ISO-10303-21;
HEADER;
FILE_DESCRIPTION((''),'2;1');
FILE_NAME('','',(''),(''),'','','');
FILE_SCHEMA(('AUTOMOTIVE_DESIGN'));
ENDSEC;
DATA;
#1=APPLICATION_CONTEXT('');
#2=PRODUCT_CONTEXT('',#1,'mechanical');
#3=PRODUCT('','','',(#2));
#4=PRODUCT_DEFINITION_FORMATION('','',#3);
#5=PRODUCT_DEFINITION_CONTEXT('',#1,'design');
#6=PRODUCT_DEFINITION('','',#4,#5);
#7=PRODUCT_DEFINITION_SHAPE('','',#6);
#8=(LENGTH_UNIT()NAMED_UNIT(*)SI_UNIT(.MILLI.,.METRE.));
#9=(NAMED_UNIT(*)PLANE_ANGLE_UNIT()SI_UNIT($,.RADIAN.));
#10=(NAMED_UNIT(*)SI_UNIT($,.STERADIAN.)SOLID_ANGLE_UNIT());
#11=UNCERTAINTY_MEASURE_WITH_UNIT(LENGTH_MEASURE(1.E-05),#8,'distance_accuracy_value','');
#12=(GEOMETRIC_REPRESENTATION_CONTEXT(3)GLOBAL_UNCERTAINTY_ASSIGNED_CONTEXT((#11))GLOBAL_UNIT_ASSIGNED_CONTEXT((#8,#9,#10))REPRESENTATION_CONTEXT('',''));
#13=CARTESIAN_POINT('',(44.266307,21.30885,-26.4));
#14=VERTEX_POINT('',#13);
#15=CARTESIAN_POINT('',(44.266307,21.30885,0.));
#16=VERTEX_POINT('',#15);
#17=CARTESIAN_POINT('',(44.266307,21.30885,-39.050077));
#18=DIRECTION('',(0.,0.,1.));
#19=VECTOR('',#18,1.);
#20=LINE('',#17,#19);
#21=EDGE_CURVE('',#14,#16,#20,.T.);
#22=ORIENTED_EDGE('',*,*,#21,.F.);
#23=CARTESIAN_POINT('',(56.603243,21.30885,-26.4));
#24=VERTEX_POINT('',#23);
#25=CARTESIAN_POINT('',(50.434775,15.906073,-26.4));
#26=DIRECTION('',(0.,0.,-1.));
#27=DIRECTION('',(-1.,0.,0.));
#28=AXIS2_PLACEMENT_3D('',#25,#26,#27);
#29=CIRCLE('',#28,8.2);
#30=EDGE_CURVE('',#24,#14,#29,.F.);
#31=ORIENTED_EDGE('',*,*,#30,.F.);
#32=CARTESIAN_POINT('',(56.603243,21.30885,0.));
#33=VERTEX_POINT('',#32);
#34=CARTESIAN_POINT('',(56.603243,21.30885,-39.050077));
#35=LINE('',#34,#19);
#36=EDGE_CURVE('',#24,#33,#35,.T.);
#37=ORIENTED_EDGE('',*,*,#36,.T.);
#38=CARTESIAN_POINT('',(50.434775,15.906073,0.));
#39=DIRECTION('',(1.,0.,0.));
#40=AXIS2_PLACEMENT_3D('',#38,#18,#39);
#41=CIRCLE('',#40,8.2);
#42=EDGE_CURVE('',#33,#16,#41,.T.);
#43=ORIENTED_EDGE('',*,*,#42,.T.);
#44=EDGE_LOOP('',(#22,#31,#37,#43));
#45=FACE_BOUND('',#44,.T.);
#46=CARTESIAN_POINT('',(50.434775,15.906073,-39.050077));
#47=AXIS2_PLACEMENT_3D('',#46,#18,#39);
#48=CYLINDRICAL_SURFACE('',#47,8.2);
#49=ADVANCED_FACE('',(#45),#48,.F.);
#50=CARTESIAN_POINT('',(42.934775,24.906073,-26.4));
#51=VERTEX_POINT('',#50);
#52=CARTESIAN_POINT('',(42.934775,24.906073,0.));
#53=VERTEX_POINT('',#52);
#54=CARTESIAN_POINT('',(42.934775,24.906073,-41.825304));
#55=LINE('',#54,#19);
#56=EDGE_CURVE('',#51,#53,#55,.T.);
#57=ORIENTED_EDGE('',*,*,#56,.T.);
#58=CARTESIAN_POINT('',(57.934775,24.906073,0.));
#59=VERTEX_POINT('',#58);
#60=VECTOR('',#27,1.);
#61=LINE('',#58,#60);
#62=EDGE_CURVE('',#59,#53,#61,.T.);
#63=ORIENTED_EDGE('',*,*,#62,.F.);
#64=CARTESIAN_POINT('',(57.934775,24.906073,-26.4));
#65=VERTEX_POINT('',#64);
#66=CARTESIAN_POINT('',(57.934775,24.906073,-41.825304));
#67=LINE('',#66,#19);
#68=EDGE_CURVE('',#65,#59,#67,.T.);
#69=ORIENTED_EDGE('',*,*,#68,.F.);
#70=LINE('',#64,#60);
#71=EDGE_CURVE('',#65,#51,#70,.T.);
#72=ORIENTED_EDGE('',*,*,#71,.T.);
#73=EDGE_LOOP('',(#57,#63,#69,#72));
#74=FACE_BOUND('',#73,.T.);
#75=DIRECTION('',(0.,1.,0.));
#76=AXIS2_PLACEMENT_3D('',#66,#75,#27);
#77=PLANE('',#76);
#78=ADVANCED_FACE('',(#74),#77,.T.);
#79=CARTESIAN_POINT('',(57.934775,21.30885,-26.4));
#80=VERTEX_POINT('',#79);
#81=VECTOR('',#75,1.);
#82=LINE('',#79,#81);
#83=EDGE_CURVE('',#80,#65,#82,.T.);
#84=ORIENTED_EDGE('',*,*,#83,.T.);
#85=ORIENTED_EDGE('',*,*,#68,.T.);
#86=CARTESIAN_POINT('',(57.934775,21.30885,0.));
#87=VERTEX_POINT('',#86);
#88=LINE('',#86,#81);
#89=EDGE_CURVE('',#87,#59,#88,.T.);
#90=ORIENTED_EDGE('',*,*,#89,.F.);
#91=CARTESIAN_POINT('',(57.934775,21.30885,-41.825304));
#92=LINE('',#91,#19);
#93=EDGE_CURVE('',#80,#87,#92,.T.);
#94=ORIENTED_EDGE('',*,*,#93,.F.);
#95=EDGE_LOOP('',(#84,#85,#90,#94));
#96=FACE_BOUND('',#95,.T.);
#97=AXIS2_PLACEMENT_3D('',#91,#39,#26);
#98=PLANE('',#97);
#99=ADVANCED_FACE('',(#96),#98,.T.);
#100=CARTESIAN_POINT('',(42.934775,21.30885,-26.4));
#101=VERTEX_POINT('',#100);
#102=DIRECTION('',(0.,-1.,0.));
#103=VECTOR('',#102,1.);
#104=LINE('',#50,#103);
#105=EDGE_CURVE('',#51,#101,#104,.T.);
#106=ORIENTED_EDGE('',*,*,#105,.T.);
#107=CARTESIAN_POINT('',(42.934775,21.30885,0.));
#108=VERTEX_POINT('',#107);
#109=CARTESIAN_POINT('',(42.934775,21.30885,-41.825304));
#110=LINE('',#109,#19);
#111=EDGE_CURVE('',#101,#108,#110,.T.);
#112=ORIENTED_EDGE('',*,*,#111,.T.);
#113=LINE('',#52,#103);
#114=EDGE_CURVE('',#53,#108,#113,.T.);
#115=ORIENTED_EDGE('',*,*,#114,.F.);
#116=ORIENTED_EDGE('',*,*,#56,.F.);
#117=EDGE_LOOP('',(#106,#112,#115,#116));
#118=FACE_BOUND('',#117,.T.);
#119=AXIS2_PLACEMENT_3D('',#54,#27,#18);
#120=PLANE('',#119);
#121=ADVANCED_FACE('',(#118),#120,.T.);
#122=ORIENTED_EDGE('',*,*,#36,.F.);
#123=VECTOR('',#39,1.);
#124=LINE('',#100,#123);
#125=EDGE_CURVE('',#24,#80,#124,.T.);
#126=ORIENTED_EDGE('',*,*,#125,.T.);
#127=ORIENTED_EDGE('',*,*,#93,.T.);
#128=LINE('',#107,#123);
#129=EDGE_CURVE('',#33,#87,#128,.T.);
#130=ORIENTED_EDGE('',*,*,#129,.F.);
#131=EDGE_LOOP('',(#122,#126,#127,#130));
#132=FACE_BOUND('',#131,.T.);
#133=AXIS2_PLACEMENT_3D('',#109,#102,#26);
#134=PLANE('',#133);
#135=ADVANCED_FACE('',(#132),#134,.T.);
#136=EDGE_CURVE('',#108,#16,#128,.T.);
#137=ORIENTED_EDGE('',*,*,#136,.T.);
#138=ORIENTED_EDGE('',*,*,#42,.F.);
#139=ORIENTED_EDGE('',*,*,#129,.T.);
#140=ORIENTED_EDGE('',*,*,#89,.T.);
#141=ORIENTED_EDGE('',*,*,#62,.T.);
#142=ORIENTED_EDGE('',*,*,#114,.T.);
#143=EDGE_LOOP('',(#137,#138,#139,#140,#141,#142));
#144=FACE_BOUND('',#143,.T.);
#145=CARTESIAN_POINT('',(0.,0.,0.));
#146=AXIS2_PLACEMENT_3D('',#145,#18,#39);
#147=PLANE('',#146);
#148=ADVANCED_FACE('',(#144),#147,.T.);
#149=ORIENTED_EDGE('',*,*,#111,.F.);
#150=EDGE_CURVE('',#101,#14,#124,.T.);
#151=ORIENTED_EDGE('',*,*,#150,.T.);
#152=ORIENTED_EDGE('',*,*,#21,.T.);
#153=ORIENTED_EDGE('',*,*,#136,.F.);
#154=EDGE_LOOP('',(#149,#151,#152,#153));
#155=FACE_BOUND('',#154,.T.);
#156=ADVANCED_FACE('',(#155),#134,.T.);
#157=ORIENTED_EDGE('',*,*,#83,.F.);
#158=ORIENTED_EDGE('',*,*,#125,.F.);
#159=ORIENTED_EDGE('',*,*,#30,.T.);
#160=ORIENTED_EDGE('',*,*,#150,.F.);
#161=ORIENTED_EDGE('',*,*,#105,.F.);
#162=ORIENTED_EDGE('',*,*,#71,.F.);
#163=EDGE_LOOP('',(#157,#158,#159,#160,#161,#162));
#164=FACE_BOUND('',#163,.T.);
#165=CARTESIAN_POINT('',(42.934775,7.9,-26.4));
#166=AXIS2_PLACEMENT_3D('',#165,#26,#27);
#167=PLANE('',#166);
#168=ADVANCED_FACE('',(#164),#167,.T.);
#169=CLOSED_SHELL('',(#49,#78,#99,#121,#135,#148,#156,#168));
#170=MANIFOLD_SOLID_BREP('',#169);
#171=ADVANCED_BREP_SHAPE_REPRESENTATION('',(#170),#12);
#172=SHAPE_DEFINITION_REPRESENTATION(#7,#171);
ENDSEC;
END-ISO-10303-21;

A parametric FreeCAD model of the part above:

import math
import FreeCAD as App
import Part
import Sketcher


def add_polygon(sketch, points):
    """Adds a closed chain of lines whose ends are joined by coincident constraints."""
    first, n = sketch.GeometryCount, len(points)
    for a, b in zip(points, points[1:] + points[:1]):
        sketch.addGeometry(Part.LineSegment(App.Vector(*a, 0), App.Vector(*b, 0)), False)
    for i in range(n):
        sketch.addConstraint(Sketcher.Constraint("Coincident", first + i, 2, first + (i + 1) % n, 1))

doc = App.newDocument("Part")
params = doc.addObject("Spreadsheet::Sheet", "Params")
for row, (alias, value) in enumerate([
    ("sketch1_width", "15 mm"),
    ("pad1_length", "26.4 mm"),
    ("sketch2_radius", "8.2 mm"),
    ("pocket1_length", "26.4 mm"),
], start=1):
    params.set(f"A{row}", alias)
    params.set(f"B{row}", "=" + value)
    params.setAlias(f"B{row}", alias)

body = doc.addObject("PartDesign::Body", "Body")

# Sketch on XY plane
sketch1 = body.newObject("Sketcher::SketchObject", "Sketch")
sketch1.AttachmentSupport = (doc.getObject("XY_Plane"), [""])
sketch1.MapMode = "FlatFace"
add_polygon(sketch1, [(42.9, 24.9), (42.9, 21.3), (57.9, 21.3), (57.9, 24.9)])  # lines 0-3
sketch1.addConstraint(Sketcher.Constraint("Vertical", 0))
sketch1.addConstraint(Sketcher.Constraint("Horizontal", 1))
sketch1.addConstraint(Sketcher.Constraint("Vertical", 2))
sketch1.addConstraint(Sketcher.Constraint("Horizontal", 3))
sketch1.addConstraint(Sketcher.Constraint("DistanceX", 1, 1, 1, 2, 15.0))
sketch1.addConstraint(Sketcher.Constraint("DistanceY", 0, 2, 0, 1, 3.597223))
sketch1.addConstraint(Sketcher.Constraint("DistanceY", -1, 1, 0, 2, 21.30885))
sketch1.addConstraint(Sketcher.Constraint("DistanceX", -1, 1, 0, 2, 42.934775))
sketch1.setExpression("Constraints[8]", "Params.sketch1_width")
pad1 = body.newObject("PartDesign::Pad", "Pad")
pad1.Profile = sketch1
pad1.setExpression("Length", "Params.pad1_length")
pad1.Reversed = True

# Sketch on XY plane
sketch2 = body.newObject("Sketcher::SketchObject", "Sketch001")
sketch2.AttachmentSupport = (doc.getObject("XY_Plane"), [""])
sketch2.MapMode = "FlatFace"
sketch2.addGeometry(Part.LineSegment(App.Vector(44, 21, 0), App.Vector(57, 21, 0)), False)
sketch2.addGeometry(Part.ArcOfCircle(Part.Circle(App.Vector(50, 16, 0), App.Vector(0, 0, 1), 8), math.radians(41), math.radians(139)), False)
sketch2.addConstraint(Sketcher.Constraint("Coincident", 0, 1, 1, 2))
sketch2.addConstraint(Sketcher.Constraint("Coincident", 1, 1, 0, 2))
sketch2.addConstraint(Sketcher.Constraint("Horizontal", 0))
sketch2.addConstraint(Sketcher.Constraint("Radius", 1, 8.2))
sketch2.addConstraint(Sketcher.Constraint("DistanceX", 0, 1, 0, 2, 12.336936))
sketch2.addConstraint(Sketcher.Constraint("DistanceY", -1, 1, 0, 1, 21.30885))
sketch2.addConstraint(Sketcher.Constraint("DistanceX", -1, 1, 1, 3, 50.434775))
sketch2.setExpression("Constraints[3]", "Params.sketch2_radius")
pocket1 = body.newObject("PartDesign::Pocket", "Pocket")
pocket1.Profile = sketch2
pocket1.setExpression("Length", "Params.pocket1_length")

doc.recompute()
